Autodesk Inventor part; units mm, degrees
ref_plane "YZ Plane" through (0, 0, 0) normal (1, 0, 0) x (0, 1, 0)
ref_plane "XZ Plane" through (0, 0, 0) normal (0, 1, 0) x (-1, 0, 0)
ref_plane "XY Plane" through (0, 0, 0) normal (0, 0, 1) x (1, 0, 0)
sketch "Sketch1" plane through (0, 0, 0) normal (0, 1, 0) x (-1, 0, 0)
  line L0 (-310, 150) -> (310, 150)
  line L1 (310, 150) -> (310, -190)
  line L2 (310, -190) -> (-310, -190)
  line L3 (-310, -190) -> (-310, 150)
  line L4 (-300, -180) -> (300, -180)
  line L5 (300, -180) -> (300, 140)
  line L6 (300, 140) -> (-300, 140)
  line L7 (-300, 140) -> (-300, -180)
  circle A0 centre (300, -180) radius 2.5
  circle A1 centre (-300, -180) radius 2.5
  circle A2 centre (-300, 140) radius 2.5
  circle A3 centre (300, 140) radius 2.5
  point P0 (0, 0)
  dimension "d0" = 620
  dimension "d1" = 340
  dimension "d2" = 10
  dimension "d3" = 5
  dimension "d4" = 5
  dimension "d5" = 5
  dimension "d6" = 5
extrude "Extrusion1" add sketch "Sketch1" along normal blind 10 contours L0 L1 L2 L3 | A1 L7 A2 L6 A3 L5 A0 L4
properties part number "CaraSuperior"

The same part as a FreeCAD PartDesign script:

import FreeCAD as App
import Part
import Sketcher
Q = App.Units.Quantity


def add_polygon(sketch, points):
    """Adds a closed chain of lines whose ends are joined by coincident constraints."""
    first, n = sketch.GeometryCount, len(points)
    for a, b in zip(points, points[1:] + points[:1]):
        sketch.addGeometry(Part.LineSegment(App.Vector(*a, 0), App.Vector(*b, 0)), False)
    for i in range(n):
        sketch.addConstraint(Sketcher.Constraint("Coincident", first + i, 2, first + (i + 1) % n, 1))

doc = App.newDocument("Part")
body = doc.addObject("PartDesign::Body", "Body")

sketch1 = body.newObject("Sketcher::SketchObject", "Sketch")
sketch1.AttachmentSupport = (doc.getObject("XZ_Plane"), [""])
sketch1.MapMode = "FlatFace"
add_polygon(sketch1, [(-310, 150), (310, 150), (310, -190), (-310, -190)])
sketch1.addGeometry(Part.Circle(App.Vector(-300, -180, 0), App.Vector(0, 0, 1), 2.5), False)
sketch1.addGeometry(Part.Circle(App.Vector(-300, 140, 0), App.Vector(0, 0, 1), 2.5), False)
sketch1.addGeometry(Part.Circle(App.Vector(300, 140, 0), App.Vector(0, 0, 1), 2.5), False)
sketch1.addGeometry(Part.Circle(App.Vector(300, -180, 0), App.Vector(0, 0, 1), 2.5), False)
sketch1.addConstraint([
    Sketcher.Constraint("Horizontal", 0),
    Sketcher.Constraint("Vertical", 1),
    Sketcher.Constraint("Horizontal", 2),
    Sketcher.Constraint("Vertical", 3),
    Sketcher.Constraint("Equal", 4, 5),
    Sketcher.Constraint("Equal", 5, 6),
    Sketcher.Constraint("Equal", 6, 7),
    Sketcher.Constraint("Symmetric", 5, 3, 6, 3, -2),
    Sketcher.Constraint("Symmetric", 4, 3, 7, 3, -2),
    Sketcher.Constraint("Vertical", 4, 3, 5, 3),
    Sketcher.Constraint("Diameter", 4, Q("5 mm")),
    Sketcher.Constraint("DistanceX", 0, 1, 0, 2, Q("620 mm")),
    Sketcher.Constraint("DistanceY", 1, 2, 1, 1, Q("340 mm")),
    Sketcher.Constraint("DistanceX", 6, 3, 0, 2, Q("10 mm")),
    Sketcher.Constraint("DistanceY", 6, 3, 0, 2, Q("10 mm")),
    Sketcher.Constraint("DistanceY", 1, 2, 7, 3, Q("10 mm")),
    Sketcher.Constraint("DistanceX", 2, 2, 4, 3, Q("10 mm")),
    Sketcher.Constraint("DistanceY", 4, 3, -1, 1, Q("180 mm")),
])
pad1 = body.newObject("PartDesign::Pad", "Pad")
pad1.Profile = sketch1
pad1.Length = 10
pad1.Reversed = True

doc.recompute()
